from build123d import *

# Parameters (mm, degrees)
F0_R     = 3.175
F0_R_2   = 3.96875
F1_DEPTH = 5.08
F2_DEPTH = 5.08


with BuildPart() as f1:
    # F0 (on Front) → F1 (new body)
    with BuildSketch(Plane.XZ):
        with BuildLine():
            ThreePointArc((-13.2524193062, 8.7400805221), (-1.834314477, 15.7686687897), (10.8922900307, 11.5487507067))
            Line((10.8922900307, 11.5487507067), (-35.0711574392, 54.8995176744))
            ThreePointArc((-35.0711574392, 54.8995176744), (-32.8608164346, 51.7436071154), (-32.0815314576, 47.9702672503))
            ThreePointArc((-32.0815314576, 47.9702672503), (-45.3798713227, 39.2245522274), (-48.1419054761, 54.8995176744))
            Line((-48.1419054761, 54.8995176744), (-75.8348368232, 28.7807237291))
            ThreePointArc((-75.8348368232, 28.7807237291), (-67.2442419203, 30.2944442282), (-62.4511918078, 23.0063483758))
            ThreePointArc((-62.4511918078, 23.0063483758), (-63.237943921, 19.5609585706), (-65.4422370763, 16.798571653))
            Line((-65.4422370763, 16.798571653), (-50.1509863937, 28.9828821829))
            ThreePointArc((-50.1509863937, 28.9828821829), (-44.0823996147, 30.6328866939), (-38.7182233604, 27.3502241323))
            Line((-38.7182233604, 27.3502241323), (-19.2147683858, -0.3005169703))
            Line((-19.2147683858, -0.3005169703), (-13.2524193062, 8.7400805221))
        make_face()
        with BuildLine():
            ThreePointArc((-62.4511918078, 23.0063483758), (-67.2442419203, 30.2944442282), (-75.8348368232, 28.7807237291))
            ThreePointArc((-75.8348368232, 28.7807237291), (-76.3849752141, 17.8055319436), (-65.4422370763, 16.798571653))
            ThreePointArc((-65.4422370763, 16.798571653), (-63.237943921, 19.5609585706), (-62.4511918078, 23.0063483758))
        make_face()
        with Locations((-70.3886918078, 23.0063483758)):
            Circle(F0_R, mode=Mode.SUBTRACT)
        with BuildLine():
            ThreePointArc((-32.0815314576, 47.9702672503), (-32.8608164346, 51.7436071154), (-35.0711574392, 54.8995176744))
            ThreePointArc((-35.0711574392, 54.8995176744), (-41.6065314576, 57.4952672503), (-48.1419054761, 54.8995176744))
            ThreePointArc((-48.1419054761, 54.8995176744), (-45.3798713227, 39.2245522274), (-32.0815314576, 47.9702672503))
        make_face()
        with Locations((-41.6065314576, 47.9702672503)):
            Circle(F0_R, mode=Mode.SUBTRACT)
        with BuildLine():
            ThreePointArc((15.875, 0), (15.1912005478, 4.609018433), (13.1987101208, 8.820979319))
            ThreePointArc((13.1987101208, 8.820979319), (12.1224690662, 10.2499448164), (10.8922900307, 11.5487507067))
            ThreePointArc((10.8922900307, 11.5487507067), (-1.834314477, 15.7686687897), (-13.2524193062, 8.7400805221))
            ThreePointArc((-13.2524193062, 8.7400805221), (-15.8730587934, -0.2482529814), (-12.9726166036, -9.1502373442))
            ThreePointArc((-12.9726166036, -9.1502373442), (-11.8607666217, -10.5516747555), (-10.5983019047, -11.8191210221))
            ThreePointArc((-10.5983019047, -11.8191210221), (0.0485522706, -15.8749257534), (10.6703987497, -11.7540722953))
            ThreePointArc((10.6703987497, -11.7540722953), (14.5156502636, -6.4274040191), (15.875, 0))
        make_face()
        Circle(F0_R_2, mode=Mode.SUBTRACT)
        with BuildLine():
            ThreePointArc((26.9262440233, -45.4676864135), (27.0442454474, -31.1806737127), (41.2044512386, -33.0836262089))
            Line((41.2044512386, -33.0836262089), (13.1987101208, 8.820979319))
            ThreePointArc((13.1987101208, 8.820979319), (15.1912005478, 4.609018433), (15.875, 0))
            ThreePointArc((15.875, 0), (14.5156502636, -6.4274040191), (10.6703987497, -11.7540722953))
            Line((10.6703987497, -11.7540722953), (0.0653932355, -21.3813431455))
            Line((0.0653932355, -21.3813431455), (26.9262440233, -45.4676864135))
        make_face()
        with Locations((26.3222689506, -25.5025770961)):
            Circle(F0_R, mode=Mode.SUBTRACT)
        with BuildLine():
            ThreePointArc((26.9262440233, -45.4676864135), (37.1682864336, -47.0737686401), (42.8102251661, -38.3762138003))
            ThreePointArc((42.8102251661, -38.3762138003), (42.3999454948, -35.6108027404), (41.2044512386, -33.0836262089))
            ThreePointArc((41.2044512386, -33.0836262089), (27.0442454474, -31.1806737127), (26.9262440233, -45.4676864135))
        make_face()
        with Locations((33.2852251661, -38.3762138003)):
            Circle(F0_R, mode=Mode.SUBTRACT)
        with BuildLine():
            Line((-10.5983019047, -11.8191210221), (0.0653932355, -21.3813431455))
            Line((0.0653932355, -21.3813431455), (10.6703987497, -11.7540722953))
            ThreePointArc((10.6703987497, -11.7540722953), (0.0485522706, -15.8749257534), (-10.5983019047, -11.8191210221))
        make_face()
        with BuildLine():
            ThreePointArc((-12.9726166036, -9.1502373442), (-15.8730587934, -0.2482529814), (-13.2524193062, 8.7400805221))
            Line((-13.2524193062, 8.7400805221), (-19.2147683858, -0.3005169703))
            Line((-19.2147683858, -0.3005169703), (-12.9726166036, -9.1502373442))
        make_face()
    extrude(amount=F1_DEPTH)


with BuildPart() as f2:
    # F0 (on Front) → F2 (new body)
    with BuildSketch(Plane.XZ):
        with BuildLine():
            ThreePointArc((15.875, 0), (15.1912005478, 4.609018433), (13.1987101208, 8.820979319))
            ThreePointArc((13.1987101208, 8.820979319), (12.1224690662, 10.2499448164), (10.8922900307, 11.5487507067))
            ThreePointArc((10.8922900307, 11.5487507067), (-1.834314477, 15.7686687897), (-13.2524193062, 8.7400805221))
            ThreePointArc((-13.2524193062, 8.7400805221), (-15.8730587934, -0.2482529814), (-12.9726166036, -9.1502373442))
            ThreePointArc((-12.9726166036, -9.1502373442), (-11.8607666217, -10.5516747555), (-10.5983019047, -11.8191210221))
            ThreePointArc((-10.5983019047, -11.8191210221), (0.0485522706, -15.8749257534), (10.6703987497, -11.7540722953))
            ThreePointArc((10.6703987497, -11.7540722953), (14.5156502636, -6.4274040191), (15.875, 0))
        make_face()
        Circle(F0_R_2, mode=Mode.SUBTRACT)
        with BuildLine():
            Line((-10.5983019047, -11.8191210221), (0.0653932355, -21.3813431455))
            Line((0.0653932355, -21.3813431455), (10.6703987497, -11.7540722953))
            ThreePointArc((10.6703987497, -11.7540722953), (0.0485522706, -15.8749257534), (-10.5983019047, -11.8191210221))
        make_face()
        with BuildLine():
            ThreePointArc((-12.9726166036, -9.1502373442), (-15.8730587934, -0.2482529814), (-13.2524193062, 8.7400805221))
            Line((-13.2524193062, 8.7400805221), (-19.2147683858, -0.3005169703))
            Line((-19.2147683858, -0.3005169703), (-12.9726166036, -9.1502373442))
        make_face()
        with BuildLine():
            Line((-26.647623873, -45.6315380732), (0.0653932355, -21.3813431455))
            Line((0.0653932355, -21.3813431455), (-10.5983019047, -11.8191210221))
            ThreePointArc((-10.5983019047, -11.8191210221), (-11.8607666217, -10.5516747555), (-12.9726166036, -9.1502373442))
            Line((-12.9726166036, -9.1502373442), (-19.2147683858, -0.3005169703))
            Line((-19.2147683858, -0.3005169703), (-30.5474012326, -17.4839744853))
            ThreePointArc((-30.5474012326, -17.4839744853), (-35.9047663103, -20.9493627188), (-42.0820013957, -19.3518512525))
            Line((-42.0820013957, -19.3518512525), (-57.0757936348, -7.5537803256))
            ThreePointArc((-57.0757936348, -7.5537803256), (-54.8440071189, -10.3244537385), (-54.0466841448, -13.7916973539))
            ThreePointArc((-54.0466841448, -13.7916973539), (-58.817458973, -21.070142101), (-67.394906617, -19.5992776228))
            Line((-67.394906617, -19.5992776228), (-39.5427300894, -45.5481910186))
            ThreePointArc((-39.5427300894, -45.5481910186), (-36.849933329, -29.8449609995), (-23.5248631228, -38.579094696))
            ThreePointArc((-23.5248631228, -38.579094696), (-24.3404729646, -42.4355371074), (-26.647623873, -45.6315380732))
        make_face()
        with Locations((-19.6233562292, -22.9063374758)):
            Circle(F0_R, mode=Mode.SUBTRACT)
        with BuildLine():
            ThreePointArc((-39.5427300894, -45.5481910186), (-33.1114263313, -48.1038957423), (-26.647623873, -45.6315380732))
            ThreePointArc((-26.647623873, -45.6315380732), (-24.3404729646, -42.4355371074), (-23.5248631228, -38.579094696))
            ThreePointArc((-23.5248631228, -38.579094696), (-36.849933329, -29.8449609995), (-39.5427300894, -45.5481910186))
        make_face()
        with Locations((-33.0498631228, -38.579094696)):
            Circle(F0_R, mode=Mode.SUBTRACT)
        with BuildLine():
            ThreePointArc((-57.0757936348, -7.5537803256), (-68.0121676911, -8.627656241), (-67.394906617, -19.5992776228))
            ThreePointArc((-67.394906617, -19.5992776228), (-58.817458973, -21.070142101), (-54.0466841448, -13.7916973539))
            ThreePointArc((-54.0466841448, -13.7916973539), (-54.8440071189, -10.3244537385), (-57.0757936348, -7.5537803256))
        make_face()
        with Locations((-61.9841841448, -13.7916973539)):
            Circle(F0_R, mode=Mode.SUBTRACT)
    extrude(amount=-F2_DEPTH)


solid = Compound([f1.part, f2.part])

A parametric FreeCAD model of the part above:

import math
import FreeCAD as App
import Part
import Sketcher
from FreeCAD import Vector
Q = App.Units.Quantity

doc = App.newDocument("Part")
body = doc.addObject("PartDesign::Body", "Body")

# Sketch on XZ plane
sketch1 = doc.addObject("Sketcher::SketchObject", "Sketch")
body.addObject(sketch1)
sketch1.AttachmentSupport = (doc.XZ_Plane, [""])
sketch1.MapMode = "FlatFace"
sketch1.addGeometry(Part.ArcOfCircle(Part.Circle(Vector(0, 0, 0), Vector(0, 0, 1), 15.875), math.radians(-144.802763), math.radians(-131.882837)), False)
sketch1.addGeometry(Part.LineSegment(Vector(-10.598302, -11.819121, 0), Vector(0.065393, -21.381343, 0)), False)
sketch1.addGeometry(Part.LineSegment(Vector(0.065393, -21.381343, 0), Vector(26.926244, -45.467686, 0)), False)
sketch1.addGeometry(Part.ArcOfCircle(Part.Circle(Vector(33.285225, -38.376214, 0), Vector(0, 0, 1), 9.525), math.radians(-131.882837), math.radians(0)), False)
sketch1.addGeometry(Part.ArcOfCircle(Part.Circle(Vector(33.285225, -38.376214, 0), Vector(0, 0, 1), 9.525), math.radians(0), math.radians(33.755651)), False)
sketch1.addGeometry(Part.LineSegment(Vector(41.204451, -33.083626, 0), Vector(13.19871, 8.820979, 0)), False)
sketch1.addGeometry(Part.ArcOfCircle(Part.Circle(Vector(0, 0, 0), Vector(0, 0, 1), 15.875), math.radians(33.755651), math.radians(46.675578)), False)
sketch1.addGeometry(Part.LineSegment(Vector(10.89229, 11.548751, 0), Vector(-35.071157, 54.899518, 0)), False)
sketch1.addGeometry(Part.ArcOfCircle(Part.Circle(Vector(-41.606531, 47.970267, 0), Vector(0, 0, 1), 9.525), math.radians(46.675578), math.radians(133.324422)), False)
sketch1.addGeometry(Part.LineSegment(Vector(-48.141905, 54.899518, 0), Vector(-75.834837, 28.780724, 0)), False)
sketch1.addGeometry(Part.ArcOfCircle(Part.Circle(Vector(-70.388692, 23.006348, 0), Vector(0, 0, 1), 7.9375), math.radians(133.324422), math.radians(308.548392)), False)
sketch1.addGeometry(Part.LineSegment(Vector(-65.442237, 16.798572, 0), Vector(-50.150986, 28.982882, 0)), False)
sketch1.addGeometry(Part.ArcOfCircle(Part.Circle(Vector(-45.204532, 22.775105, 0), Vector(0, 0, 1), 7.9375), math.radians(35.197237), math.radians(128.548392)), False)
sketch1.addGeometry(Part.LineSegment(Vector(-38.718223, 27.350224, 0), Vector(-19.214768, -0.300517, 0)), False)
sketch1.addGeometry(Part.LineSegment(Vector(-19.214768, -0.300517, 0), Vector(-12.972617, -9.150237, 0)), False)
sketch1.addGeometry(Part.Circle(Vector(33.285225, -38.376214, 0), Vector(0, 0, 1), 3.175), False)
sketch1.addGeometry(Part.Circle(Vector(26.322269, -25.502577, 0), Vector(0, 0, 1), 3.175), False)
sketch1.addGeometry(Part.Circle(Vector(0, 0, 0), Vector(0, 0, 1), 3.96875), False)
sketch1.addGeometry(Part.Circle(Vector(-70.388692, 23.006348, 0), Vector(0, 0, 1), 3.175), False)
sketch1.addGeometry(Part.Circle(Vector(-41.606531, 47.970267, 0), Vector(0, 0, 1), 3.175), False)
sketch1.addConstraint(Sketcher.Constraint("Tangent", 0, 2, 1, 1))
sketch1.addConstraint(Sketcher.Constraint("Coincident", 1, 2, 2, 1))
sketch1.addConstraint(Sketcher.Constraint("Tangent", 2, 2, 3, 1))
sketch1.addConstraint(Sketcher.Constraint("Tangent", 3, 2, 4, 1))
sketch1.addConstraint(Sketcher.Constraint("Tangent", 4, 2, 5, 1))
sketch1.addConstraint(Sketcher.Constraint("Tangent", 5, 2, 6, 1))
sketch1.addConstraint(Sketcher.Constraint("Tangent", 6, 2, 7, 1))
sketch1.addConstraint(Sketcher.Constraint("Tangent", 7, 2, 8, 1))
sketch1.addConstraint(Sketcher.Constraint("Tangent", 8, 2, 9, 1))
sketch1.addConstraint(Sketcher.Constraint("Tangent", 9, 2, 10, 1))
sketch1.addConstraint(Sketcher.Constraint("Tangent", 10, 2, 11, 1))
sketch1.addConstraint(Sketcher.Constraint("Tangent", 11, 2, 12, 2))
sketch1.addConstraint(Sketcher.Constraint("Tangent", 12, 1, 13, 1))
sketch1.addConstraint(Sketcher.Constraint("Coincident", 13, 2, 14, 1))
sketch1.addConstraint(Sketcher.Constraint("Tangent", 14, 2, 0, 1))
sketch1.addConstraint(Sketcher.Constraint("Coincident", 0, 3, -1, 1))
sketch1.addConstraint(Sketcher.Constraint("Coincident", 6, 3, -1, 1))
sketch1.addConstraint(Sketcher.Constraint("Coincident", 17, 3, -1, 1))
sketch1.addConstraint(Sketcher.Constraint("Coincident", 15, 3, 3, 3))
sketch1.addConstraint(Sketcher.Constraint("Coincident", 18, 3, 10, 3))
sketch1.addConstraint(Sketcher.Constraint("Coincident", 19, 3, 8, 3))
sketch1.addConstraint(Sketcher.Constraint("Equal", 3, 4))
sketch1.addConstraint(Sketcher.Constraint("Equal", 0, 6))
sketch1.addConstraint(Sketcher.Constraint("Equal", 4, 8))
sketch1.addConstraint(Sketcher.Constraint("Equal", 10, 12))
sketch1.addConstraint(Sketcher.Constraint("Equal", 15, 16))
sketch1.addConstraint(Sketcher.Constraint("Equal", 16, 18))
sketch1.addConstraint(Sketcher.Constraint("Equal", 18, 19))
sketch1.addConstraint(Sketcher.Constraint("Parallel", 1, 2))
sketch1.addConstraint(Sketcher.Constraint("Parallel", 13, 14))
sketch1.addConstraint(Sketcher.Constraint("Horizontal", 15, 3, 3, 2))
sketch1.addConstraint(Sketcher.Constraint("Horizontal", 7, 2, 8, 2))
sketch1.addConstraint(Sketcher.Constraint("Diameter", 15, Q("0.25 in")))
sketch1.addConstraint(Sketcher.Constraint("Diameter", 17, Q("0.3125 in")))
sketch1.addConstraint(Sketcher.Constraint("Radius", 0, Q("0.625 in")))
sketch1.addConstraint(Sketcher.Constraint("Radius", 3, Q("0.375 in")))
sketch1.addConstraint(Sketcher.Constraint("Radius", 10, Q("0.3125 in")))
sketch1.addConstraint(Sketcher.Constraint("DistanceX", 0, 2, -1, 1, 10.598302))
sketch1.addConstraint(Sketcher.Constraint("DistanceX", 12, 3, 8, 3, 3.598))
sketch1.addConstraint(Sketcher.Constraint("DistanceY", 0, 2, 5, 2, 20.6401))
sketch1.addConstraint(Sketcher.Constraint("DistanceX", 9, 2, 10, 2, 10.3926))
sketch1.addConstraint(Sketcher.Constraint("Distance", 14, 10.829682))
sketch1.addConstraint(Sketcher.Constraint("DistanceX", 8, 3, -1, 1, 41.606531))
sketch1.addConstraint(Sketcher.Constraint("DistanceX", 10, 3, -1, 1, 70.388692))
sketch1.addConstraint(Sketcher.Constraint("DistanceY", -1, 1, 10, 3, 23.006348))
sketch1.addConstraint(Sketcher.Constraint("DistanceX", -1, 1, 16, 3, 26.322269))
sketch1.addConstraint(Sketcher.Constraint("DistanceY", 2, 2, 16, 3, 19.965109))
sketch1.addConstraint(Sketcher.Constraint("DistanceX", 1, 2, 2, 2, 26.860851))
pad1 = doc.addObject("PartDesign::Pad", "Pad")
body.addObject(pad1)
pad1.Profile = sketch1
pad1.Length = Q("0.2 in")
body2 = doc.addObject("PartDesign::Body", "Body001")

# Sketch on XZ plane
sketch2 = doc.addObject("Sketcher::SketchObject", "Sketch001")
body2.addObject(sketch2)
sketch2.AttachmentSupport = (doc.getObject("XZ_Plane001"), [""])
sketch2.MapMode = "FlatFace"
sketch2.addGeometry(Part.ArcOfCircle(Part.Circle(Vector(0, 0, 0), Vector(0, 0, 1), 15.875), math.radians(0), math.radians(33.755651)), False)
sketch2.addGeometry(Part.ArcOfCircle(Part.Circle(Vector(0, 0, 0), Vector(0, 0, 1), 15.875), math.radians(33.755651), math.radians(46.675578)), False)
sketch2.addGeometry(Part.ArcOfCircle(Part.Circle(Vector(0, 0, 0), Vector(0, 0, 1), 15.875), math.radians(46.675578), math.radians(146.594817)), False)
sketch2.addGeometry(Part.LineSegment(Vector(-13.252419, 8.740081, 0), Vector(-19.214768, -0.300517, 0)), False)
sketch2.addGeometry(Part.LineSegment(Vector(-19.214768, -0.300517, 0), Vector(-30.547401, -17.483974, 0)), False)
sketch2.addGeometry(Part.ArcOfCircle(Part.Circle(Vector(-37.173611, -13.113934, 0), Vector(0, 0, 1), 7.9375), math.radians(-128.197923), math.radians(-33.405183)), False)
sketch2.addGeometry(Part.LineSegment(Vector(-42.082001, -19.351851, 0), Vector(-57.075794, -7.55378, 0)), False)
sketch2.addGeometry(Part.ArcOfCircle(Part.Circle(Vector(-61.984184, -13.791697, 0), Vector(0, 0, 1), 7.9375), math.radians(51.802077), math.radians(227.026046)), False)
sketch2.addGeometry(Part.LineSegment(Vector(-67.394907, -19.599278, 0), Vector(-39.54273, -45.548191, 0)), False)
sketch2.addGeometry(Part.ArcOfCircle(Part.Circle(Vector(-33.049863, -38.579095, 0), Vector(0, 0, 1), 9.525), math.radians(-132.973954), math.radians(-47.766694)), False)
sketch2.addGeometry(Part.LineSegment(Vector(-26.647624, -45.631538, 0), Vector(0.065393, -21.381343, 0)), False)
sketch2.addGeometry(Part.LineSegment(Vector(0.065393, -21.381343, 0), Vector(10.670399, -11.754072, 0)), False)
sketch2.addGeometry(Part.ArcOfCircle(Part.Circle(Vector(0, 0, 0), Vector(0, 0, 1), 15.875), math.radians(-47.766694), math.radians(0)), False)
sketch2.addGeometry(Part.Circle(Vector(-33.049863, -38.579095, 0), Vector(0, 0, 1), 3.175), False)
sketch2.addGeometry(Part.Circle(Vector(-19.623356, -22.906337, 0), Vector(0, 0, 1), 3.175), False)
sketch2.addGeometry(Part.Circle(Vector(-61.984184, -13.791697, 0), Vector(0, 0, 1), 3.175), False)
sketch2.addGeometry(Part.Circle(Vector(0, 0, 0), Vector(0, 0, 1), 3.96875), False)
sketch2.addConstraint(Sketcher.Constraint("Tangent", 0, 2, 1, 1))
sketch2.addConstraint(Sketcher.Constraint("Tangent", 1, 2, 2, 1))
sketch2.addConstraint(Sketcher.Constraint("Tangent", 2, 2, 3, 1))
sketch2.addConstraint(Sketcher.Constraint("Coincident", 3, 2, 4, 1))
sketch2.addConstraint(Sketcher.Constraint("Tangent", 4, 2, 5, 2))
sketch2.addConstraint(Sketcher.Constraint("Tangent", 5, 1, 6, 1))
sketch2.addConstraint(Sketcher.Constraint("Tangent", 6, 2, 7, 1))
sketch2.addConstraint(Sketcher.Constraint("Tangent", 7, 2, 8, 1))
sketch2.addConstraint(Sketcher.Constraint("Tangent", 8, 2, 9, 1))
sketch2.addConstraint(Sketcher.Constraint("Tangent", 9, 2, 10, 1))
sketch2.addConstraint(Sketcher.Constraint("Coincident", 10, 2, 11, 1))
sketch2.addConstraint(Sketcher.Constraint("Tangent", 11, 2, 12, 1))
sketch2.addConstraint(Sketcher.Constraint("Tangent", 12, 2, 0, 1))
sketch2.addConstraint(Sketcher.Constraint("Coincident", 0, 3, -1, 1))
sketch2.addConstraint(Sketcher.Constraint("Coincident", 2, 3, -1, 1))
sketch2.addConstraint(Sketcher.Constraint("Coincident", 16, 3, -1, 1))
sketch2.addConstraint(Sketcher.Constraint("Coincident", 13, 3, 9, 3))
sketch2.addConstraint(Sketcher.Constraint("Coincident", 15, 3, 7, 3))
sketch2.addConstraint(Sketcher.Constraint("Equal", 5, 7))
sketch2.addConstraint(Sketcher.Constraint("Equal", 2, 12))
sketch2.addConstraint(Sketcher.Constraint("Equal", 13, 14))
sketch2.addConstraint(Sketcher.Constraint("Equal", 14, 15))
sketch2.addConstraint(Sketcher.Constraint("PointOnObject", 12, 2, -1))
sketch2.addConstraint(Sketcher.Constraint("Parallel", 3, 4))
sketch2.addConstraint(Sketcher.Constraint("Parallel", 10, 11))
sketch2.addConstraint(Sketcher.Constraint("Diameter", 13, Q("0.25 in")))
sketch2.addConstraint(Sketcher.Constraint("Diameter", 16, Q("0.3125 in")))
sketch2.addConstraint(Sketcher.Constraint("Radius", 0, Q("0.625 in")))
sketch2.addConstraint(Sketcher.Constraint("Radius", 5, Q("0.3125 in")))
sketch2.addConstraint(Sketcher.Constraint("Radius", 9, Q("0.375 in")))
sketch2.addConstraint(Sketcher.Constraint("Distance", 6, 19.079001))
sketch2.addConstraint(Sketcher.Constraint("DistanceX", 4, 2, -1, 1, 30.547401))
sketch2.addConstraint(Sketcher.Constraint("DistanceX", 5, 1, -1, 1, 42.082001))
sketch2.addConstraint(Sketcher.Constraint("DistanceX", -1, 1, 11, 2, 10.670399))
sketch2.addConstraint(Sketcher.Constraint("DistanceY", 9, 2, 14, 3, 22.725201))
sketch2.addConstraint(Sketcher.Constraint("Distance", 3, 10.829682))
sketch2.addConstraint(Sketcher.Constraint("Distance", 4, 20.583969))
sketch2.addConstraint(Sketcher.Constraint("DistanceX", -1, 1, 0, 2, 13.19871))
sketch2.addConstraint(Sketcher.Constraint("DistanceX", -1, 1, 1, 2, 10.89229))
sketch2.addConstraint(Sketcher.Constraint("DistanceX", 8, 2, -1, 1, 39.54273))
sketch2.addConstraint(Sketcher.Constraint("DistanceX", 14, 3, 10, 2, 19.688749))
sketch2.addConstraint(Sketcher.Constraint("DistanceY", 10, 2, 11, 2, 9.627271))
pad2 = doc.addObject("PartDesign::Pad", "Pad001")
body2.addObject(pad2)
pad2.Profile = sketch2
pad2.Length = Q("0.2 in")
pad2.Reversed = True

doc.recompute()
